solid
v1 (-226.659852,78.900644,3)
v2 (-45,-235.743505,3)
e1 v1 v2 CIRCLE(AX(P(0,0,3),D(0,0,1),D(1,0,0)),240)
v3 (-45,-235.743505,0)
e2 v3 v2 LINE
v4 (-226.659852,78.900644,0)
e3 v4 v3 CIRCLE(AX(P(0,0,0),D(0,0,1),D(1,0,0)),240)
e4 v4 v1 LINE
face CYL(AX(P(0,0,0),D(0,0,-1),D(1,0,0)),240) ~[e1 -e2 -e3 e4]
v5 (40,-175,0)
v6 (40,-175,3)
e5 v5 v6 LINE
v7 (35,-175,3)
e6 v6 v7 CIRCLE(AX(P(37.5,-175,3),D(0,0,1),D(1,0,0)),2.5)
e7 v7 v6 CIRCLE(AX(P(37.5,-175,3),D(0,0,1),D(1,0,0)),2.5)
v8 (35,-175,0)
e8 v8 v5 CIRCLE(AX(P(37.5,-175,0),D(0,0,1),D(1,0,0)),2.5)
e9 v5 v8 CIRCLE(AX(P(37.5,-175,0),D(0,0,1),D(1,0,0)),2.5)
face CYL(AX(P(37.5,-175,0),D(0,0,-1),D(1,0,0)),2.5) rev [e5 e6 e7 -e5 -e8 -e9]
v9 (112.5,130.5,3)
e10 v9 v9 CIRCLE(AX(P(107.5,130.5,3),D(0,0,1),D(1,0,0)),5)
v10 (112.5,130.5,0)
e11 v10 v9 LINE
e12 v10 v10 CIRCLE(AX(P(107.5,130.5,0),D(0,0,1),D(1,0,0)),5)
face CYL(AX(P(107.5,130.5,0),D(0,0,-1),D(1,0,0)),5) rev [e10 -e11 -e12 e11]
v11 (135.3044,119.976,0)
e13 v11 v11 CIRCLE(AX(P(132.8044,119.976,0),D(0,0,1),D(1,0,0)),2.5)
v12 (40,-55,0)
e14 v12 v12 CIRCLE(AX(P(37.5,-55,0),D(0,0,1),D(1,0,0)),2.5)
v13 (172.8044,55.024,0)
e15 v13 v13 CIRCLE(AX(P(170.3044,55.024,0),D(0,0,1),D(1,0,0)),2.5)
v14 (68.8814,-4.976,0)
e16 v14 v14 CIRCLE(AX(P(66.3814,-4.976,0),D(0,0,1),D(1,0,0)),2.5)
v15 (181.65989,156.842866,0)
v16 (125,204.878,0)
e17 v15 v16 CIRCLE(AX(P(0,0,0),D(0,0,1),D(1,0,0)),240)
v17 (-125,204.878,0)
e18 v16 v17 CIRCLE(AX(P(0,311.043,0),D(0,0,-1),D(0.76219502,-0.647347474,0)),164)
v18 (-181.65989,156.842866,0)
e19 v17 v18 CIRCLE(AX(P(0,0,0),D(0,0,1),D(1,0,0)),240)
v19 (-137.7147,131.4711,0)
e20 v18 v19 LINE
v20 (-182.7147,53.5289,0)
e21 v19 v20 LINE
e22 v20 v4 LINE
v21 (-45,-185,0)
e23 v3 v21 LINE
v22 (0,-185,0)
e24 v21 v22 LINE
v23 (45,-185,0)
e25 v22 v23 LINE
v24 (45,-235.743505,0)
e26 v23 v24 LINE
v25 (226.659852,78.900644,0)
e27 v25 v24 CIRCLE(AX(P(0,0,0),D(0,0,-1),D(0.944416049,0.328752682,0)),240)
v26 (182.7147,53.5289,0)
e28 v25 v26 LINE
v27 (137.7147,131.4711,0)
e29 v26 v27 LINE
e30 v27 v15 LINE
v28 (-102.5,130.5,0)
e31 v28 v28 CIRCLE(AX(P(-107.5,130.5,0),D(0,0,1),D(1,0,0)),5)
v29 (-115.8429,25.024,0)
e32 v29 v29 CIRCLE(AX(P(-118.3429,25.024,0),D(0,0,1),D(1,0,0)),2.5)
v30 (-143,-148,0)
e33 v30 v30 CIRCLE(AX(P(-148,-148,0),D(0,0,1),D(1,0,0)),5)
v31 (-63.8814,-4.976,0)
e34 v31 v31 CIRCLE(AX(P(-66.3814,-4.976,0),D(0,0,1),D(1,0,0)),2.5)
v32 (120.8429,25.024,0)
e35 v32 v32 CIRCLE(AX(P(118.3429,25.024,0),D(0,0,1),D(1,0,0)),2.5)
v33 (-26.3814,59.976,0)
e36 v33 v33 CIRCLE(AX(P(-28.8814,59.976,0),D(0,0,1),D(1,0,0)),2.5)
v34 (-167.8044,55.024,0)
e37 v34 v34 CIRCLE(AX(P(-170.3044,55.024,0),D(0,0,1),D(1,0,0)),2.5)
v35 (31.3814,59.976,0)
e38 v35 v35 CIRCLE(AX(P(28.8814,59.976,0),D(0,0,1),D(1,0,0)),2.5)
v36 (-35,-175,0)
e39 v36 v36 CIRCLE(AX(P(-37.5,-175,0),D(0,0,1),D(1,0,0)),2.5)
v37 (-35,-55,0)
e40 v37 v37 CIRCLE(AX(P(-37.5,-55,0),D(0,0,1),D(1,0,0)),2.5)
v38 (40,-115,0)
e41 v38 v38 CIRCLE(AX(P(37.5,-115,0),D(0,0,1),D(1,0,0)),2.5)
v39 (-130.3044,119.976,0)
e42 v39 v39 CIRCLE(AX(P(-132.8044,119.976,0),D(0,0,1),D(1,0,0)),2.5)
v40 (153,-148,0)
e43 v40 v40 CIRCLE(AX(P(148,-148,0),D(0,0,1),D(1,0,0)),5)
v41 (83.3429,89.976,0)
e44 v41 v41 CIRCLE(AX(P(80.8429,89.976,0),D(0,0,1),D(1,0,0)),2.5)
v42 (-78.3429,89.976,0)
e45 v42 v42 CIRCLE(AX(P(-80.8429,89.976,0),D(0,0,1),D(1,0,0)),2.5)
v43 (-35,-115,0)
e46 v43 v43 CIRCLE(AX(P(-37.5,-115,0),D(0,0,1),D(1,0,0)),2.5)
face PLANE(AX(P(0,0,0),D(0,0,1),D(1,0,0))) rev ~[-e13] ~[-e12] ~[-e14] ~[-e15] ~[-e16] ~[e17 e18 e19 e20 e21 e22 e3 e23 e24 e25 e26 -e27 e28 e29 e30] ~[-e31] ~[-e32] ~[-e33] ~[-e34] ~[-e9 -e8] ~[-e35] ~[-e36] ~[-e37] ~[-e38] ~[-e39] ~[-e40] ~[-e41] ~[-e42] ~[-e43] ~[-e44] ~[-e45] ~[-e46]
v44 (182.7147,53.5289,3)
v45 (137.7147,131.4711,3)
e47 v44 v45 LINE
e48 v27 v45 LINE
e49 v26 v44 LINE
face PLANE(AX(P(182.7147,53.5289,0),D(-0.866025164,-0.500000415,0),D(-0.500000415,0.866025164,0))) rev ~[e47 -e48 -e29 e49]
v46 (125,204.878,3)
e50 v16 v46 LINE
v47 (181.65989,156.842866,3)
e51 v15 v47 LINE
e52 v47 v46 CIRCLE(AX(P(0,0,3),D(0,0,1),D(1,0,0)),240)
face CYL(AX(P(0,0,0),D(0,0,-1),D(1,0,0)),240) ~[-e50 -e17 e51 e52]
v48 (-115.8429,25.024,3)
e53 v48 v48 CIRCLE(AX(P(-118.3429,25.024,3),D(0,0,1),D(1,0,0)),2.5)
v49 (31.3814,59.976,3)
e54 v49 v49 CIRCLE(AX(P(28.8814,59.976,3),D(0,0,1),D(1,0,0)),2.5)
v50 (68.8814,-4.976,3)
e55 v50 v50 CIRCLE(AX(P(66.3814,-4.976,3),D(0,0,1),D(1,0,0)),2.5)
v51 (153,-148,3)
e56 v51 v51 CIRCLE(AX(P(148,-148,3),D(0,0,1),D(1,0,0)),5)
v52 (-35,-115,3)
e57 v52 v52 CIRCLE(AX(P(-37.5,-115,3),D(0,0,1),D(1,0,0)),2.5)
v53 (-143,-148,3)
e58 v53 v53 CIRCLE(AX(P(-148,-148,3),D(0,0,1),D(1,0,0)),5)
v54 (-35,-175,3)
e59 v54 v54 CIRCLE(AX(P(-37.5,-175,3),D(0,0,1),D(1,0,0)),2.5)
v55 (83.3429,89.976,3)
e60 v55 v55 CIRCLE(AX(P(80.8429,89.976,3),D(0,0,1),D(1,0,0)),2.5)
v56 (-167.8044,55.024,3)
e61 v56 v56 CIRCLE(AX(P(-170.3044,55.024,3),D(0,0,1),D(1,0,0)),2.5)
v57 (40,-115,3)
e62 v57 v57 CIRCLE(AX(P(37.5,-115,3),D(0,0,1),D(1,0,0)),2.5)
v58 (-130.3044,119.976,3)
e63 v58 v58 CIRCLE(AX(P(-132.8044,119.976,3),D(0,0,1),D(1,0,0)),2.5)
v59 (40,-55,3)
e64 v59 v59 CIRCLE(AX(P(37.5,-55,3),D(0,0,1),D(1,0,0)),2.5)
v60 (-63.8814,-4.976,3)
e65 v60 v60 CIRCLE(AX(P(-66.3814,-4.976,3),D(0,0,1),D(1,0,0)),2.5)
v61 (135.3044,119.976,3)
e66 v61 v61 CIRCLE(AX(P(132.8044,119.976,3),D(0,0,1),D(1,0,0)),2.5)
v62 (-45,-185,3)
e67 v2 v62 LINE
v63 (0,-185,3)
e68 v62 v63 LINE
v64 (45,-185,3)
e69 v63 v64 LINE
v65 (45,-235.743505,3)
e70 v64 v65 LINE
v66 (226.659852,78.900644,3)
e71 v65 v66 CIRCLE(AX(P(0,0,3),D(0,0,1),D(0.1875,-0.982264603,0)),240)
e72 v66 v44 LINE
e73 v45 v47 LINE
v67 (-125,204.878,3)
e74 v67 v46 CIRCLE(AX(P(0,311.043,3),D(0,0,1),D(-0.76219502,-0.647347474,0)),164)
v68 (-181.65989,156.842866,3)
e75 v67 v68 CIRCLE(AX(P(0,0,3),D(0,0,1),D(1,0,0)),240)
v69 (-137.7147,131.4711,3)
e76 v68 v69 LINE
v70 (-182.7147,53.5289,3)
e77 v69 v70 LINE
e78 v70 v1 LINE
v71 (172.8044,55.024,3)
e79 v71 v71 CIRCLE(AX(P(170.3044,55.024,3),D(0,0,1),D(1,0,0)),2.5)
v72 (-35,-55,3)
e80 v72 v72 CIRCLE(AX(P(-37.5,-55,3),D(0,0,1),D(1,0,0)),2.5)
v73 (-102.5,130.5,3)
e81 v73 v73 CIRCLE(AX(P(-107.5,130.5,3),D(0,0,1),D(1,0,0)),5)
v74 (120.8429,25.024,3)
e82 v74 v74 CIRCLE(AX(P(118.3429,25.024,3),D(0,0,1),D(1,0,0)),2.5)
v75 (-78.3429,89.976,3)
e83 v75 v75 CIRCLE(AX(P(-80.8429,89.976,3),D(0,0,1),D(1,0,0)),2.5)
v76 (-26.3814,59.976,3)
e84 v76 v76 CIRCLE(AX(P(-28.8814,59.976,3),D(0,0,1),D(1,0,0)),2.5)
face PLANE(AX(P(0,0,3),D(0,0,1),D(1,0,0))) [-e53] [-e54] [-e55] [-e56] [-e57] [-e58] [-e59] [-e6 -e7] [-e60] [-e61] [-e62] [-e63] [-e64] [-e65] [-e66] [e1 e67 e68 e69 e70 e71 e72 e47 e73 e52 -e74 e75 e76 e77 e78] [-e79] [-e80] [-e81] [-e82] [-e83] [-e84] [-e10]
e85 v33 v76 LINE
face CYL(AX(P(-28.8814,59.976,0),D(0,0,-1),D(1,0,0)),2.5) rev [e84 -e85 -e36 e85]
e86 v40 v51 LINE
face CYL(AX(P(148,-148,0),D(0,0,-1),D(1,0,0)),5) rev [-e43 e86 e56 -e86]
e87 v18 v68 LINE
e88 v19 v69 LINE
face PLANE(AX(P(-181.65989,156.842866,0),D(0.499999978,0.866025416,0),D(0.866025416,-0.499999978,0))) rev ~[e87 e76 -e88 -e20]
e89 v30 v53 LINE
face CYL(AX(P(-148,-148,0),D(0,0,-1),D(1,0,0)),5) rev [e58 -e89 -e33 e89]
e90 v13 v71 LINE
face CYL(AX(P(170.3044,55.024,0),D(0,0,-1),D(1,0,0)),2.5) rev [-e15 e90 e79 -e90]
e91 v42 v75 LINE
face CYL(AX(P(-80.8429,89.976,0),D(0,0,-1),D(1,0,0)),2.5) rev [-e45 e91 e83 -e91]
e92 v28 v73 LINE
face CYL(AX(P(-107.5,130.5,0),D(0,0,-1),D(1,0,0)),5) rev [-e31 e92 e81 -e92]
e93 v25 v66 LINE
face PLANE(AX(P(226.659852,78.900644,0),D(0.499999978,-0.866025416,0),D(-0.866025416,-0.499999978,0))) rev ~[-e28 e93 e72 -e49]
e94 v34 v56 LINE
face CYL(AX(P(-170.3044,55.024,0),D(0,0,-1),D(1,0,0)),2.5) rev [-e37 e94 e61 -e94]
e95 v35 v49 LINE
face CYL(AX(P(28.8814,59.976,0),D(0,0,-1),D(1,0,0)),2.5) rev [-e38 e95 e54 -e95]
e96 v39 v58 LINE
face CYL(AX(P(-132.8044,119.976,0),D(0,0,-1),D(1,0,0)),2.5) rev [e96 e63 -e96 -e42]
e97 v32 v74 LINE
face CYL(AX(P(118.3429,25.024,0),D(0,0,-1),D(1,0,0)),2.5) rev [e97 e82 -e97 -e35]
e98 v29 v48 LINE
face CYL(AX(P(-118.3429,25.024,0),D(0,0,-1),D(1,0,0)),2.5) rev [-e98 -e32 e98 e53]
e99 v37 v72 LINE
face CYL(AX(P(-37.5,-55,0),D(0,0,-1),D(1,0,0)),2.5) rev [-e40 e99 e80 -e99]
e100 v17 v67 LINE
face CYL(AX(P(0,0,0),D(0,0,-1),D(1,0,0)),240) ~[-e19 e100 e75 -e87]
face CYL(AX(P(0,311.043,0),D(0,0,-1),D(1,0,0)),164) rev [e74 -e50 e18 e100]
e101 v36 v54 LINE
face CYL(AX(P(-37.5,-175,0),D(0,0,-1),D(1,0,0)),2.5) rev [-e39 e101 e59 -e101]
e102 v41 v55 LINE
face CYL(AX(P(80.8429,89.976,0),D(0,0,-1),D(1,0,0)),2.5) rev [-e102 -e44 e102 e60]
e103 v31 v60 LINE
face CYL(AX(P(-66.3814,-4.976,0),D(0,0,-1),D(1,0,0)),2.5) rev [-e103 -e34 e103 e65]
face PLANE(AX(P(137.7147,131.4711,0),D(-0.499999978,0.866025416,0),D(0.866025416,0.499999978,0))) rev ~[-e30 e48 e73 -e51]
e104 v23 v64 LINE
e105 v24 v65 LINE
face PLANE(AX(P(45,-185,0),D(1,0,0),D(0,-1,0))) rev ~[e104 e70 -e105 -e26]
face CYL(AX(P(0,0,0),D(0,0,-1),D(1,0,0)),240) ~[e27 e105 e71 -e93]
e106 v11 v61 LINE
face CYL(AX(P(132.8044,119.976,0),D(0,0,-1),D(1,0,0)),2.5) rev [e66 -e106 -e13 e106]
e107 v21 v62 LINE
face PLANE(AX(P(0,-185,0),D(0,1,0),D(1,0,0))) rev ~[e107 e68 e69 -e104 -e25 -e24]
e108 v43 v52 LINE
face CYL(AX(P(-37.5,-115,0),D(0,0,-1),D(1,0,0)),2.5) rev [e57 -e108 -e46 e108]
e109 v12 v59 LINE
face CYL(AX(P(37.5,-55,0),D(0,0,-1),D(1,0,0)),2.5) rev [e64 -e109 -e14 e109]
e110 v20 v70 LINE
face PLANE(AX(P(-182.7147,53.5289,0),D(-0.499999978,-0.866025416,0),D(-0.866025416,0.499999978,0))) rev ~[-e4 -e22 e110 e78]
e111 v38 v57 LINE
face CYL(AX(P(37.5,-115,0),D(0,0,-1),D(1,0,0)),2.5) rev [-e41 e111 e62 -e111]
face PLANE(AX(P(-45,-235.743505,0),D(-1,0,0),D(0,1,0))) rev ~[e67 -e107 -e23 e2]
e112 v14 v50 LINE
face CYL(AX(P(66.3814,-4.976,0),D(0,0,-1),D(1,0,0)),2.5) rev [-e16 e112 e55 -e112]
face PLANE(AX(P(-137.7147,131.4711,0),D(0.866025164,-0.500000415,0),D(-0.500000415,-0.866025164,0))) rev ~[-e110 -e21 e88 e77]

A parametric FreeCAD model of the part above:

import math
import FreeCAD as App
import Part
import Sketcher

V = App.Vector
Q = App.Units.Quantity

doc = App.newDocument("Part")
body = doc.addObject("PartDesign::Body", "Body")

# Sketch on XY plane
sketch1 = body.newObject("Sketcher::SketchObject", "Sketch")
sketch1.AttachmentSupport = (doc.getObject("XY_Plane"), [""])
sketch1.MapMode = "FlatFace"
sketch1.addGeometry([
    Part.ArcOfCircle(Part.Circle(V(0, 0, 0), V(0, 0, 1), 240), math.radians(40.81), math.radians(58.61)),  # 0
    Part.ArcOfCircle(Part.Circle(V(0, 311, 0), V(0, 0, 1), 164), math.radians(-140), math.radians(-40)),  # 1
    Part.ArcOfCircle(Part.Circle(V(0, 0, 0), V(0, 0, 1), 240), math.radians(121.39), math.radians(139.19)),  # 2
    Part.LineSegment(V(-181.7, 156.8, 0), V(-137.7, 131.5, 0)),  # 3
    Part.LineSegment(V(-137.7, 131.5, 0), V(-182.7, 53.5, 0)),  # 4
    Part.LineSegment(V(-182.7, 53.5, 0), V(-226.7, 78.9, 0)),  # 5
    Part.ArcOfCircle(Part.Circle(V(0, 0, 0), V(0, 0, 1), 240), math.radians(161), math.radians(259)),  # 6
    Part.LineSegment(V(-45, -235.7, 0), V(-45, -185, 0)),  # 7
    Part.LineSegment(V(-45, -185, 0), V(0, -185, 0)),  # 8
    Part.LineSegment(V(0, -185, 0), V(45, -185, 0)),  # 9
    Part.LineSegment(V(45, -185, 0), V(45, -235.7, 0)),  # 10
    Part.ArcOfCircle(Part.Circle(V(0, 0, 0), V(0, 0, 1), 240), math.radians(-79), math.radians(19)),  # 11
    Part.LineSegment(V(226.7, 78.9, 0), V(182.7, 53.5, 0)),  # 12
    Part.LineSegment(V(182.7, 53.5, 0), V(137.7, 131.5, 0)),  # 13
    Part.LineSegment(V(137.7, 131.5, 0), V(181.7, 156.8, 0)),  # 14
    Part.Circle(V(-148, -148, 0), V(0, 0, 1), 5),  # 15
    Part.Circle(V(-37.5, -175, 0), V(0, 0, 1), 2.5),  # 16
    Part.Circle(V(-37.5, -115, 0), V(0, 0, 1), 2.5),  # 17
    Part.Circle(V(-170.3, 55, 0), V(0, 0, 1), 2.5),  # 18
    Part.Circle(V(-118.3, 25, 0), V(0, 0, 1), 2.5),  # 19
    Part.Circle(V(-66.4, -5, 0), V(0, 0, 1), 2.5),  # 20
    Part.Circle(V(-37.5, -55, 0), V(0, 0, 1), 2.5),  # 21
    Part.Circle(V(-80.8, 90, 0), V(0, 0, 1), 2.5),  # 22
    Part.Circle(V(-28.9, 60, 0), V(0, 0, 1), 2.5),  # 23
    Part.Circle(V(37.5, -175, 0), V(0, 0, 1), 2.5),  # 24
    Part.Circle(V(37.5, -115, 0), V(0, 0, 1), 2.5),  # 25
    Part.Circle(V(148, -148, 0), V(0, 0, 1), 5),  # 26
    Part.Circle(V(37.5, -55, 0), V(0, 0, 1), 2.5),  # 27
    Part.Circle(V(66.4, -5, 0), V(0, 0, 1), 2.5),  # 28
    Part.Circle(V(118.3, 25, 0), V(0, 0, 1), 2.5),  # 29
    Part.Circle(V(28.9, 60, 0), V(0, 0, 1), 2.5),  # 30
    Part.Circle(V(80.8, 90, 0), V(0, 0, 1), 2.5),  # 31
    Part.Circle(V(170.3, 55, 0), V(0, 0, 1), 2.5),  # 32
    Part.Circle(V(-132.8, 120, 0), V(0, 0, 1), 2.5),  # 33
    Part.Circle(V(-107.5, 130.5, 0), V(0, 0, 1), 5),  # 34
    Part.Circle(V(107.5, 130.5, 0), V(0, 0, 1), 5),  # 35
    Part.Circle(V(132.8, 120, 0), V(0, 0, 1), 2.5),  # 36
], False)
sketch1.addConstraint([
    Sketcher.Constraint("Coincident", 0, 2, 1, 2),
    Sketcher.Constraint("Coincident", 1, 1, 2, 1),
    Sketcher.Constraint("Coincident", 2, 2, 3, 1),
    Sketcher.Constraint("Coincident", 3, 2, 4, 1),
    Sketcher.Constraint("Coincident", 4, 2, 5, 1),
    Sketcher.Constraint("Coincident", 5, 2, 6, 1),
    Sketcher.Constraint("Coincident", 6, 2, 7, 1),
    Sketcher.Constraint("Coincident", 7, 2, 8, 1),
    Sketcher.Constraint("Coincident", 8, 2, 9, 1),
    Sketcher.Constraint("Coincident", 9, 2, 10, 1),
    Sketcher.Constraint("Coincident", 10, 2, 11, 1),
    Sketcher.Constraint("Coincident", 11, 2, 12, 1),
    Sketcher.Constraint("Coincident", 12, 2, 13, 1),
    Sketcher.Constraint("Coincident", 13, 2, 14, 1),
    Sketcher.Constraint("Coincident", 14, 2, 0, 1),
    Sketcher.Constraint("Vertical", 7),
    Sketcher.Constraint("Horizontal", 8),
    Sketcher.Constraint("Horizontal", 9),
    Sketcher.Constraint("Vertical", 10),
    Sketcher.Constraint("Coincident", 0, 3, -1, 1),
    Sketcher.Constraint("Coincident", 2, 3, -1, 1),
    Sketcher.Constraint("Coincident", 6, 3, -1, 1),
    Sketcher.Constraint("Coincident", 11, 3, -1, 1),
    Sketcher.Constraint("Equal", 0, 2),
    Sketcher.Constraint("Equal", 2, 6),
    Sketcher.Constraint("Equal", 6, 11),
    Sketcher.Constraint("Equal", 16, 17),
    Sketcher.Constraint("Equal", 17, 18),
    Sketcher.Constraint("Equal", 18, 19),
    Sketcher.Constraint("Equal", 19, 20),
    Sketcher.Constraint("Equal", 20, 21),
    Sketcher.Constraint("Equal", 21, 22),
    Sketcher.Constraint("Equal", 22, 23),
    Sketcher.Constraint("Equal", 23, 24),
    Sketcher.Constraint("Equal", 24, 25),
    Sketcher.Constraint("Equal", 15, 26),
    Sketcher.Constraint("Equal", 25, 27),
    Sketcher.Constraint("Equal", 27, 28),
    Sketcher.Constraint("Equal", 28, 29),
    Sketcher.Constraint("Equal", 29, 30),
    Sketcher.Constraint("Equal", 30, 31),
    Sketcher.Constraint("Equal", 31, 32),
    Sketcher.Constraint("Equal", 32, 33),
    Sketcher.Constraint("Equal", 26, 34),
    Sketcher.Constraint("Equal", 34, 35),
    Sketcher.Constraint("Equal", 33, 36),
    Sketcher.Constraint("Symmetric", 16, 3, 24, 3, -2),
    Sketcher.Constraint("Symmetric", 17, 3, 25, 3, -2),
    Sketcher.Constraint("Symmetric", 15, 3, 26, 3, -2),
    Sketcher.Constraint("Symmetric", 21, 3, 27, 3, -2),
    Sketcher.Constraint("Symmetric", 20, 3, 28, 3, -2),
    Sketcher.Constraint("Symmetric", 19, 3, 29, 3, -2),
    Sketcher.Constraint("Symmetric", 23, 3, 30, 3, -2),
    Sketcher.Constraint("Symmetric", 22, 3, 31, 3, -2),
    Sketcher.Constraint("Symmetric", 18, 3, 32, 3, -2),
    Sketcher.Constraint("Symmetric", 34, 3, 35, 3, -2),
    Sketcher.Constraint("Symmetric", 33, 3, 36, 3, -2),
    Sketcher.Constraint("Symmetric", 4, 2, 12, 2, -2),
    Sketcher.Constraint("Symmetric", 3, 2, 13, 2, -2),
    Sketcher.Constraint("PointOnObject", 1, 3, -2),
    Sketcher.Constraint("PointOnObject", 8, 2, -2),
    Sketcher.Constraint("Perpendicular", 3, 4),
    Sketcher.Constraint("Perpendicular", 4, 5),
    Sketcher.Constraint("Perpendicular", 12, 13),
    Sketcher.Constraint("Perpendicular", 13, 14),
    Sketcher.Constraint("Horizontal", 6, 2, 10, 2),
    Sketcher.Constraint("Vertical", 16, 3, 17, 3),
    Sketcher.Constraint("Vertical", 17, 3, 21, 3),
    Sketcher.Constraint("Equal", 3, 5),
    Sketcher.Constraint("Diameter", 15, 10.0),
    Sketcher.Constraint("Diameter", 16, 5.0),
    Sketcher.Constraint("Radius", 0, 240.0),
    Sketcher.Constraint("Radius", 1, 164.0),
    Sketcher.Constraint("Distance", 4, 90.0),
    Sketcher.Constraint("DistanceX", 15, 3, -1, 1, 148.0),
    Sketcher.Constraint("DistanceY", 15, 3, -1, 1, 148.0),
    Sketcher.Constraint("DistanceY", 17, 3, -1, 1, 115.0),
    Sketcher.Constraint("DistanceY", 21, 3, -1, 1, 55.0),
    Sketcher.Constraint("DistanceY", 16, 3, 17, 3, 60.0),
    Sketcher.Constraint("DistanceX", 16, 3, 24, 3, 75.0),
    Sketcher.Constraint("DistanceY", 28, 3, 32, 3, 60.0),
    Sketcher.Constraint("DistanceY", 23, 3, 33, 3, 60.0),
    Sketcher.Constraint("DistanceY", 7, 2, 16, 3, 10.0),
    Sketcher.Constraint("DistanceX", 7, 2, 9, 2, 90.0),
    Sketcher.Constraint("DistanceX", 34, 3, -1, 1, 107.5),
    Sketcher.Constraint("DistanceY", -1, 1, 34, 3, 130.5),
    Sketcher.Constraint("Angle", 3, Q("-30 deg")),
    Sketcher.Constraint("DistanceX", -1, 1, 0, 2, 125.0),
    Sketcher.Constraint("DistanceY", 19, 3, 18, 3, 30.0),
    Sketcher.Constraint("DistanceY", 23, 3, 22, 3, 30.0),
    Sketcher.Constraint("DistanceX", 19, 3, 22, 3, 37.5),
    Sketcher.Constraint("DistanceX", 18, 3, 33, 3, 37.5),
    Sketcher.Constraint("DistanceY", -1, 1, 18, 3, 55.024),
    Sketcher.Constraint("DistanceX", 19, 3, -1, 1, 118.343),
    Sketcher.Constraint("DistanceY", -1, 1, 22, 3, 89.976),
    Sketcher.Constraint("DistanceY", -1, 1, 3, 2, 131.471),
    Sketcher.Constraint("DistanceX", 28, 3, 32, 3, 103.923),
    Sketcher.Constraint("DistanceX", 30, 3, 32, 3, 141.423),
    Sketcher.Constraint("DistanceX", 18, 3, -1, 1, 170.3044),
])
pad1 = body.newObject("PartDesign::Pad", "Pad")
pad1.Profile = sketch1
pad1.Length = 3

doc.recompute()
